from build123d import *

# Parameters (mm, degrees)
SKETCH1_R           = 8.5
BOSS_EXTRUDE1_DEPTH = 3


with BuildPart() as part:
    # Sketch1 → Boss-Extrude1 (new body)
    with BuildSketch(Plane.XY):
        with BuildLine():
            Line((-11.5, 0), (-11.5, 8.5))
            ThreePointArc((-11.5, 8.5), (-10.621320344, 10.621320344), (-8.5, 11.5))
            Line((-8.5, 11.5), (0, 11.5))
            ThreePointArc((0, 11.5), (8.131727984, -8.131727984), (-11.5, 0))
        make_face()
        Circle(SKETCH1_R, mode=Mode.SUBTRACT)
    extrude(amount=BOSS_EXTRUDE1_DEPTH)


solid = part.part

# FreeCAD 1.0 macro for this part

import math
import FreeCAD as App
import Part
import Sketcher

V = App.Vector
Q = App.Units.Quantity

doc = App.newDocument("Part")
body = doc.addObject("PartDesign::Body", "Body")

sketch1 = body.newObject("Sketcher::SketchObject", "Sketch")
sketch1.AttachmentSupport = (doc.getObject("XY_Plane"), [""])
sketch1.MapMode = "FlatFace"
sketch1.addGeometry([
    Part.LineSegment(V(-11.5, 8.5, 0), V(-11.5, 0, 0)),
    Part.ArcOfCircle(Part.Circle(V(0, 0, 0), V(0, 0, 1), 11.5), math.radians(180), math.radians(450)),
    Part.LineSegment(V(0, 11.5, 0), V(-8.5, 11.5, 0)),
    Part.ArcOfCircle(Part.Circle(V(-8.5, 8.5, 0), V(0, 0, 1), 3), math.radians(90), math.radians(180)),
    Part.Circle(V(0, 0, 0), V(0, 0, 1), 8.5),
], False)
sketch1.addConstraint([
    Sketcher.Constraint("Tangent", 0, 2, 1, 1),
    Sketcher.Constraint("Tangent", 1, 2, 2, 1),
    Sketcher.Constraint("Tangent", 2, 2, 3, 1),
    Sketcher.Constraint("Tangent", 3, 2, 0, 1),
    Sketcher.Constraint("Vertical", 0),
    Sketcher.Constraint("Horizontal", 2),
    Sketcher.Constraint("Coincident", 1, 3, -1, 1),
    Sketcher.Constraint("Coincident", 4, 3, -1, 1),
    Sketcher.Constraint("Diameter", 4, Q("17 mm")),
    Sketcher.Constraint("Radius", 3, Q("3 mm")),
    Sketcher.Constraint("Radius", 1, Q("11.5 mm")),
])
pad1 = body.newObject("PartDesign::Pad", "Pad")
pad1.Profile = sketch1
pad1.Length = 3

doc.recompute()
